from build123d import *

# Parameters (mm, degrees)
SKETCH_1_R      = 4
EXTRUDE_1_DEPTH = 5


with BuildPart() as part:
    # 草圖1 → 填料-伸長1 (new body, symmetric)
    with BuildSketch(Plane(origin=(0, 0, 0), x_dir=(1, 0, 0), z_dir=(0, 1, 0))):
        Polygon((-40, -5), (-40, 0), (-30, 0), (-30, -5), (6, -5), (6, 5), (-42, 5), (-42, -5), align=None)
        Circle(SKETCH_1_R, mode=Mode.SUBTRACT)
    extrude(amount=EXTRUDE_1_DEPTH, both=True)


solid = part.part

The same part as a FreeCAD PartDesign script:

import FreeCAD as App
import Part
import Sketcher

V = App.Vector
Q = App.Units.Quantity


def add_polygon(sketch, points):
    """Adds a closed chain of lines whose ends are joined by coincident constraints."""
    first, n = sketch.GeometryCount, len(points)
    for a, b in zip(points, points[1:] + points[:1]):
        sketch.addGeometry(Part.LineSegment(App.Vector(*a, 0), App.Vector(*b, 0)), False)
    for i in range(n):
        sketch.addConstraint(Sketcher.Constraint("Coincident", first + i, 2, first + (i + 1) % n, 1))

doc = App.newDocument("Part")
body = doc.addObject("PartDesign::Body", "Body")

# Sketch on XZ plane
sketch1 = body.newObject("Sketcher::SketchObject", "Sketch")
sketch1.AttachmentSupport = (doc.getObject("XZ_Plane"), [""])
sketch1.MapMode = "FlatFace"
add_polygon(sketch1, [(-40, 5), (-40, 0), (-30, 0), (-30, 5), (6, 5), (6, -5), (-42, -5), (-42, 5)])  # lines 0-7
sketch1.addGeometry(Part.Circle(V(0, 0, 0), V(0, 0, 1), 4), False)  # 8
sketch1.addConstraint([
    Sketcher.Constraint("Vertical", 0),
    Sketcher.Constraint("Horizontal", 1),
    Sketcher.Constraint("Vertical", 2),
    Sketcher.Constraint("Horizontal", 3),
    Sketcher.Constraint("Vertical", 4),
    Sketcher.Constraint("Horizontal", 5),
    Sketcher.Constraint("Vertical", 6),
    Sketcher.Constraint("Horizontal", 7),
    Sketcher.Constraint("Coincident", 8, 3, -1, 1),
    Sketcher.Constraint("PointOnObject", 0, 2, -1),
    Sketcher.Constraint("Horizontal", 3, 2, 6, 2),
    Sketcher.Constraint("Equal", 1, 4),
    Sketcher.Constraint("Diameter", 8, Q("8 mm")),
    Sketcher.Constraint("DistanceX", 1, 1, 1, 2, Q("10 mm")),
    Sketcher.Constraint("DistanceX", 3, 1, 3, 2, Q("36 mm")),
    Sketcher.Constraint("DistanceX", 5, 2, 5, 1, Q("48 mm")),
    Sketcher.Constraint("DistanceY", 0, 2, 0, 1, Q("5 mm")),
    Sketcher.Constraint("DistanceX", 0, 2, -1, 1, Q("40 mm")),
])
pad1 = body.newObject("PartDesign::Pad", "Pad")
pad1.Profile = sketch1
pad1.Length = 10
pad1.Midplane = True

doc.recompute()
